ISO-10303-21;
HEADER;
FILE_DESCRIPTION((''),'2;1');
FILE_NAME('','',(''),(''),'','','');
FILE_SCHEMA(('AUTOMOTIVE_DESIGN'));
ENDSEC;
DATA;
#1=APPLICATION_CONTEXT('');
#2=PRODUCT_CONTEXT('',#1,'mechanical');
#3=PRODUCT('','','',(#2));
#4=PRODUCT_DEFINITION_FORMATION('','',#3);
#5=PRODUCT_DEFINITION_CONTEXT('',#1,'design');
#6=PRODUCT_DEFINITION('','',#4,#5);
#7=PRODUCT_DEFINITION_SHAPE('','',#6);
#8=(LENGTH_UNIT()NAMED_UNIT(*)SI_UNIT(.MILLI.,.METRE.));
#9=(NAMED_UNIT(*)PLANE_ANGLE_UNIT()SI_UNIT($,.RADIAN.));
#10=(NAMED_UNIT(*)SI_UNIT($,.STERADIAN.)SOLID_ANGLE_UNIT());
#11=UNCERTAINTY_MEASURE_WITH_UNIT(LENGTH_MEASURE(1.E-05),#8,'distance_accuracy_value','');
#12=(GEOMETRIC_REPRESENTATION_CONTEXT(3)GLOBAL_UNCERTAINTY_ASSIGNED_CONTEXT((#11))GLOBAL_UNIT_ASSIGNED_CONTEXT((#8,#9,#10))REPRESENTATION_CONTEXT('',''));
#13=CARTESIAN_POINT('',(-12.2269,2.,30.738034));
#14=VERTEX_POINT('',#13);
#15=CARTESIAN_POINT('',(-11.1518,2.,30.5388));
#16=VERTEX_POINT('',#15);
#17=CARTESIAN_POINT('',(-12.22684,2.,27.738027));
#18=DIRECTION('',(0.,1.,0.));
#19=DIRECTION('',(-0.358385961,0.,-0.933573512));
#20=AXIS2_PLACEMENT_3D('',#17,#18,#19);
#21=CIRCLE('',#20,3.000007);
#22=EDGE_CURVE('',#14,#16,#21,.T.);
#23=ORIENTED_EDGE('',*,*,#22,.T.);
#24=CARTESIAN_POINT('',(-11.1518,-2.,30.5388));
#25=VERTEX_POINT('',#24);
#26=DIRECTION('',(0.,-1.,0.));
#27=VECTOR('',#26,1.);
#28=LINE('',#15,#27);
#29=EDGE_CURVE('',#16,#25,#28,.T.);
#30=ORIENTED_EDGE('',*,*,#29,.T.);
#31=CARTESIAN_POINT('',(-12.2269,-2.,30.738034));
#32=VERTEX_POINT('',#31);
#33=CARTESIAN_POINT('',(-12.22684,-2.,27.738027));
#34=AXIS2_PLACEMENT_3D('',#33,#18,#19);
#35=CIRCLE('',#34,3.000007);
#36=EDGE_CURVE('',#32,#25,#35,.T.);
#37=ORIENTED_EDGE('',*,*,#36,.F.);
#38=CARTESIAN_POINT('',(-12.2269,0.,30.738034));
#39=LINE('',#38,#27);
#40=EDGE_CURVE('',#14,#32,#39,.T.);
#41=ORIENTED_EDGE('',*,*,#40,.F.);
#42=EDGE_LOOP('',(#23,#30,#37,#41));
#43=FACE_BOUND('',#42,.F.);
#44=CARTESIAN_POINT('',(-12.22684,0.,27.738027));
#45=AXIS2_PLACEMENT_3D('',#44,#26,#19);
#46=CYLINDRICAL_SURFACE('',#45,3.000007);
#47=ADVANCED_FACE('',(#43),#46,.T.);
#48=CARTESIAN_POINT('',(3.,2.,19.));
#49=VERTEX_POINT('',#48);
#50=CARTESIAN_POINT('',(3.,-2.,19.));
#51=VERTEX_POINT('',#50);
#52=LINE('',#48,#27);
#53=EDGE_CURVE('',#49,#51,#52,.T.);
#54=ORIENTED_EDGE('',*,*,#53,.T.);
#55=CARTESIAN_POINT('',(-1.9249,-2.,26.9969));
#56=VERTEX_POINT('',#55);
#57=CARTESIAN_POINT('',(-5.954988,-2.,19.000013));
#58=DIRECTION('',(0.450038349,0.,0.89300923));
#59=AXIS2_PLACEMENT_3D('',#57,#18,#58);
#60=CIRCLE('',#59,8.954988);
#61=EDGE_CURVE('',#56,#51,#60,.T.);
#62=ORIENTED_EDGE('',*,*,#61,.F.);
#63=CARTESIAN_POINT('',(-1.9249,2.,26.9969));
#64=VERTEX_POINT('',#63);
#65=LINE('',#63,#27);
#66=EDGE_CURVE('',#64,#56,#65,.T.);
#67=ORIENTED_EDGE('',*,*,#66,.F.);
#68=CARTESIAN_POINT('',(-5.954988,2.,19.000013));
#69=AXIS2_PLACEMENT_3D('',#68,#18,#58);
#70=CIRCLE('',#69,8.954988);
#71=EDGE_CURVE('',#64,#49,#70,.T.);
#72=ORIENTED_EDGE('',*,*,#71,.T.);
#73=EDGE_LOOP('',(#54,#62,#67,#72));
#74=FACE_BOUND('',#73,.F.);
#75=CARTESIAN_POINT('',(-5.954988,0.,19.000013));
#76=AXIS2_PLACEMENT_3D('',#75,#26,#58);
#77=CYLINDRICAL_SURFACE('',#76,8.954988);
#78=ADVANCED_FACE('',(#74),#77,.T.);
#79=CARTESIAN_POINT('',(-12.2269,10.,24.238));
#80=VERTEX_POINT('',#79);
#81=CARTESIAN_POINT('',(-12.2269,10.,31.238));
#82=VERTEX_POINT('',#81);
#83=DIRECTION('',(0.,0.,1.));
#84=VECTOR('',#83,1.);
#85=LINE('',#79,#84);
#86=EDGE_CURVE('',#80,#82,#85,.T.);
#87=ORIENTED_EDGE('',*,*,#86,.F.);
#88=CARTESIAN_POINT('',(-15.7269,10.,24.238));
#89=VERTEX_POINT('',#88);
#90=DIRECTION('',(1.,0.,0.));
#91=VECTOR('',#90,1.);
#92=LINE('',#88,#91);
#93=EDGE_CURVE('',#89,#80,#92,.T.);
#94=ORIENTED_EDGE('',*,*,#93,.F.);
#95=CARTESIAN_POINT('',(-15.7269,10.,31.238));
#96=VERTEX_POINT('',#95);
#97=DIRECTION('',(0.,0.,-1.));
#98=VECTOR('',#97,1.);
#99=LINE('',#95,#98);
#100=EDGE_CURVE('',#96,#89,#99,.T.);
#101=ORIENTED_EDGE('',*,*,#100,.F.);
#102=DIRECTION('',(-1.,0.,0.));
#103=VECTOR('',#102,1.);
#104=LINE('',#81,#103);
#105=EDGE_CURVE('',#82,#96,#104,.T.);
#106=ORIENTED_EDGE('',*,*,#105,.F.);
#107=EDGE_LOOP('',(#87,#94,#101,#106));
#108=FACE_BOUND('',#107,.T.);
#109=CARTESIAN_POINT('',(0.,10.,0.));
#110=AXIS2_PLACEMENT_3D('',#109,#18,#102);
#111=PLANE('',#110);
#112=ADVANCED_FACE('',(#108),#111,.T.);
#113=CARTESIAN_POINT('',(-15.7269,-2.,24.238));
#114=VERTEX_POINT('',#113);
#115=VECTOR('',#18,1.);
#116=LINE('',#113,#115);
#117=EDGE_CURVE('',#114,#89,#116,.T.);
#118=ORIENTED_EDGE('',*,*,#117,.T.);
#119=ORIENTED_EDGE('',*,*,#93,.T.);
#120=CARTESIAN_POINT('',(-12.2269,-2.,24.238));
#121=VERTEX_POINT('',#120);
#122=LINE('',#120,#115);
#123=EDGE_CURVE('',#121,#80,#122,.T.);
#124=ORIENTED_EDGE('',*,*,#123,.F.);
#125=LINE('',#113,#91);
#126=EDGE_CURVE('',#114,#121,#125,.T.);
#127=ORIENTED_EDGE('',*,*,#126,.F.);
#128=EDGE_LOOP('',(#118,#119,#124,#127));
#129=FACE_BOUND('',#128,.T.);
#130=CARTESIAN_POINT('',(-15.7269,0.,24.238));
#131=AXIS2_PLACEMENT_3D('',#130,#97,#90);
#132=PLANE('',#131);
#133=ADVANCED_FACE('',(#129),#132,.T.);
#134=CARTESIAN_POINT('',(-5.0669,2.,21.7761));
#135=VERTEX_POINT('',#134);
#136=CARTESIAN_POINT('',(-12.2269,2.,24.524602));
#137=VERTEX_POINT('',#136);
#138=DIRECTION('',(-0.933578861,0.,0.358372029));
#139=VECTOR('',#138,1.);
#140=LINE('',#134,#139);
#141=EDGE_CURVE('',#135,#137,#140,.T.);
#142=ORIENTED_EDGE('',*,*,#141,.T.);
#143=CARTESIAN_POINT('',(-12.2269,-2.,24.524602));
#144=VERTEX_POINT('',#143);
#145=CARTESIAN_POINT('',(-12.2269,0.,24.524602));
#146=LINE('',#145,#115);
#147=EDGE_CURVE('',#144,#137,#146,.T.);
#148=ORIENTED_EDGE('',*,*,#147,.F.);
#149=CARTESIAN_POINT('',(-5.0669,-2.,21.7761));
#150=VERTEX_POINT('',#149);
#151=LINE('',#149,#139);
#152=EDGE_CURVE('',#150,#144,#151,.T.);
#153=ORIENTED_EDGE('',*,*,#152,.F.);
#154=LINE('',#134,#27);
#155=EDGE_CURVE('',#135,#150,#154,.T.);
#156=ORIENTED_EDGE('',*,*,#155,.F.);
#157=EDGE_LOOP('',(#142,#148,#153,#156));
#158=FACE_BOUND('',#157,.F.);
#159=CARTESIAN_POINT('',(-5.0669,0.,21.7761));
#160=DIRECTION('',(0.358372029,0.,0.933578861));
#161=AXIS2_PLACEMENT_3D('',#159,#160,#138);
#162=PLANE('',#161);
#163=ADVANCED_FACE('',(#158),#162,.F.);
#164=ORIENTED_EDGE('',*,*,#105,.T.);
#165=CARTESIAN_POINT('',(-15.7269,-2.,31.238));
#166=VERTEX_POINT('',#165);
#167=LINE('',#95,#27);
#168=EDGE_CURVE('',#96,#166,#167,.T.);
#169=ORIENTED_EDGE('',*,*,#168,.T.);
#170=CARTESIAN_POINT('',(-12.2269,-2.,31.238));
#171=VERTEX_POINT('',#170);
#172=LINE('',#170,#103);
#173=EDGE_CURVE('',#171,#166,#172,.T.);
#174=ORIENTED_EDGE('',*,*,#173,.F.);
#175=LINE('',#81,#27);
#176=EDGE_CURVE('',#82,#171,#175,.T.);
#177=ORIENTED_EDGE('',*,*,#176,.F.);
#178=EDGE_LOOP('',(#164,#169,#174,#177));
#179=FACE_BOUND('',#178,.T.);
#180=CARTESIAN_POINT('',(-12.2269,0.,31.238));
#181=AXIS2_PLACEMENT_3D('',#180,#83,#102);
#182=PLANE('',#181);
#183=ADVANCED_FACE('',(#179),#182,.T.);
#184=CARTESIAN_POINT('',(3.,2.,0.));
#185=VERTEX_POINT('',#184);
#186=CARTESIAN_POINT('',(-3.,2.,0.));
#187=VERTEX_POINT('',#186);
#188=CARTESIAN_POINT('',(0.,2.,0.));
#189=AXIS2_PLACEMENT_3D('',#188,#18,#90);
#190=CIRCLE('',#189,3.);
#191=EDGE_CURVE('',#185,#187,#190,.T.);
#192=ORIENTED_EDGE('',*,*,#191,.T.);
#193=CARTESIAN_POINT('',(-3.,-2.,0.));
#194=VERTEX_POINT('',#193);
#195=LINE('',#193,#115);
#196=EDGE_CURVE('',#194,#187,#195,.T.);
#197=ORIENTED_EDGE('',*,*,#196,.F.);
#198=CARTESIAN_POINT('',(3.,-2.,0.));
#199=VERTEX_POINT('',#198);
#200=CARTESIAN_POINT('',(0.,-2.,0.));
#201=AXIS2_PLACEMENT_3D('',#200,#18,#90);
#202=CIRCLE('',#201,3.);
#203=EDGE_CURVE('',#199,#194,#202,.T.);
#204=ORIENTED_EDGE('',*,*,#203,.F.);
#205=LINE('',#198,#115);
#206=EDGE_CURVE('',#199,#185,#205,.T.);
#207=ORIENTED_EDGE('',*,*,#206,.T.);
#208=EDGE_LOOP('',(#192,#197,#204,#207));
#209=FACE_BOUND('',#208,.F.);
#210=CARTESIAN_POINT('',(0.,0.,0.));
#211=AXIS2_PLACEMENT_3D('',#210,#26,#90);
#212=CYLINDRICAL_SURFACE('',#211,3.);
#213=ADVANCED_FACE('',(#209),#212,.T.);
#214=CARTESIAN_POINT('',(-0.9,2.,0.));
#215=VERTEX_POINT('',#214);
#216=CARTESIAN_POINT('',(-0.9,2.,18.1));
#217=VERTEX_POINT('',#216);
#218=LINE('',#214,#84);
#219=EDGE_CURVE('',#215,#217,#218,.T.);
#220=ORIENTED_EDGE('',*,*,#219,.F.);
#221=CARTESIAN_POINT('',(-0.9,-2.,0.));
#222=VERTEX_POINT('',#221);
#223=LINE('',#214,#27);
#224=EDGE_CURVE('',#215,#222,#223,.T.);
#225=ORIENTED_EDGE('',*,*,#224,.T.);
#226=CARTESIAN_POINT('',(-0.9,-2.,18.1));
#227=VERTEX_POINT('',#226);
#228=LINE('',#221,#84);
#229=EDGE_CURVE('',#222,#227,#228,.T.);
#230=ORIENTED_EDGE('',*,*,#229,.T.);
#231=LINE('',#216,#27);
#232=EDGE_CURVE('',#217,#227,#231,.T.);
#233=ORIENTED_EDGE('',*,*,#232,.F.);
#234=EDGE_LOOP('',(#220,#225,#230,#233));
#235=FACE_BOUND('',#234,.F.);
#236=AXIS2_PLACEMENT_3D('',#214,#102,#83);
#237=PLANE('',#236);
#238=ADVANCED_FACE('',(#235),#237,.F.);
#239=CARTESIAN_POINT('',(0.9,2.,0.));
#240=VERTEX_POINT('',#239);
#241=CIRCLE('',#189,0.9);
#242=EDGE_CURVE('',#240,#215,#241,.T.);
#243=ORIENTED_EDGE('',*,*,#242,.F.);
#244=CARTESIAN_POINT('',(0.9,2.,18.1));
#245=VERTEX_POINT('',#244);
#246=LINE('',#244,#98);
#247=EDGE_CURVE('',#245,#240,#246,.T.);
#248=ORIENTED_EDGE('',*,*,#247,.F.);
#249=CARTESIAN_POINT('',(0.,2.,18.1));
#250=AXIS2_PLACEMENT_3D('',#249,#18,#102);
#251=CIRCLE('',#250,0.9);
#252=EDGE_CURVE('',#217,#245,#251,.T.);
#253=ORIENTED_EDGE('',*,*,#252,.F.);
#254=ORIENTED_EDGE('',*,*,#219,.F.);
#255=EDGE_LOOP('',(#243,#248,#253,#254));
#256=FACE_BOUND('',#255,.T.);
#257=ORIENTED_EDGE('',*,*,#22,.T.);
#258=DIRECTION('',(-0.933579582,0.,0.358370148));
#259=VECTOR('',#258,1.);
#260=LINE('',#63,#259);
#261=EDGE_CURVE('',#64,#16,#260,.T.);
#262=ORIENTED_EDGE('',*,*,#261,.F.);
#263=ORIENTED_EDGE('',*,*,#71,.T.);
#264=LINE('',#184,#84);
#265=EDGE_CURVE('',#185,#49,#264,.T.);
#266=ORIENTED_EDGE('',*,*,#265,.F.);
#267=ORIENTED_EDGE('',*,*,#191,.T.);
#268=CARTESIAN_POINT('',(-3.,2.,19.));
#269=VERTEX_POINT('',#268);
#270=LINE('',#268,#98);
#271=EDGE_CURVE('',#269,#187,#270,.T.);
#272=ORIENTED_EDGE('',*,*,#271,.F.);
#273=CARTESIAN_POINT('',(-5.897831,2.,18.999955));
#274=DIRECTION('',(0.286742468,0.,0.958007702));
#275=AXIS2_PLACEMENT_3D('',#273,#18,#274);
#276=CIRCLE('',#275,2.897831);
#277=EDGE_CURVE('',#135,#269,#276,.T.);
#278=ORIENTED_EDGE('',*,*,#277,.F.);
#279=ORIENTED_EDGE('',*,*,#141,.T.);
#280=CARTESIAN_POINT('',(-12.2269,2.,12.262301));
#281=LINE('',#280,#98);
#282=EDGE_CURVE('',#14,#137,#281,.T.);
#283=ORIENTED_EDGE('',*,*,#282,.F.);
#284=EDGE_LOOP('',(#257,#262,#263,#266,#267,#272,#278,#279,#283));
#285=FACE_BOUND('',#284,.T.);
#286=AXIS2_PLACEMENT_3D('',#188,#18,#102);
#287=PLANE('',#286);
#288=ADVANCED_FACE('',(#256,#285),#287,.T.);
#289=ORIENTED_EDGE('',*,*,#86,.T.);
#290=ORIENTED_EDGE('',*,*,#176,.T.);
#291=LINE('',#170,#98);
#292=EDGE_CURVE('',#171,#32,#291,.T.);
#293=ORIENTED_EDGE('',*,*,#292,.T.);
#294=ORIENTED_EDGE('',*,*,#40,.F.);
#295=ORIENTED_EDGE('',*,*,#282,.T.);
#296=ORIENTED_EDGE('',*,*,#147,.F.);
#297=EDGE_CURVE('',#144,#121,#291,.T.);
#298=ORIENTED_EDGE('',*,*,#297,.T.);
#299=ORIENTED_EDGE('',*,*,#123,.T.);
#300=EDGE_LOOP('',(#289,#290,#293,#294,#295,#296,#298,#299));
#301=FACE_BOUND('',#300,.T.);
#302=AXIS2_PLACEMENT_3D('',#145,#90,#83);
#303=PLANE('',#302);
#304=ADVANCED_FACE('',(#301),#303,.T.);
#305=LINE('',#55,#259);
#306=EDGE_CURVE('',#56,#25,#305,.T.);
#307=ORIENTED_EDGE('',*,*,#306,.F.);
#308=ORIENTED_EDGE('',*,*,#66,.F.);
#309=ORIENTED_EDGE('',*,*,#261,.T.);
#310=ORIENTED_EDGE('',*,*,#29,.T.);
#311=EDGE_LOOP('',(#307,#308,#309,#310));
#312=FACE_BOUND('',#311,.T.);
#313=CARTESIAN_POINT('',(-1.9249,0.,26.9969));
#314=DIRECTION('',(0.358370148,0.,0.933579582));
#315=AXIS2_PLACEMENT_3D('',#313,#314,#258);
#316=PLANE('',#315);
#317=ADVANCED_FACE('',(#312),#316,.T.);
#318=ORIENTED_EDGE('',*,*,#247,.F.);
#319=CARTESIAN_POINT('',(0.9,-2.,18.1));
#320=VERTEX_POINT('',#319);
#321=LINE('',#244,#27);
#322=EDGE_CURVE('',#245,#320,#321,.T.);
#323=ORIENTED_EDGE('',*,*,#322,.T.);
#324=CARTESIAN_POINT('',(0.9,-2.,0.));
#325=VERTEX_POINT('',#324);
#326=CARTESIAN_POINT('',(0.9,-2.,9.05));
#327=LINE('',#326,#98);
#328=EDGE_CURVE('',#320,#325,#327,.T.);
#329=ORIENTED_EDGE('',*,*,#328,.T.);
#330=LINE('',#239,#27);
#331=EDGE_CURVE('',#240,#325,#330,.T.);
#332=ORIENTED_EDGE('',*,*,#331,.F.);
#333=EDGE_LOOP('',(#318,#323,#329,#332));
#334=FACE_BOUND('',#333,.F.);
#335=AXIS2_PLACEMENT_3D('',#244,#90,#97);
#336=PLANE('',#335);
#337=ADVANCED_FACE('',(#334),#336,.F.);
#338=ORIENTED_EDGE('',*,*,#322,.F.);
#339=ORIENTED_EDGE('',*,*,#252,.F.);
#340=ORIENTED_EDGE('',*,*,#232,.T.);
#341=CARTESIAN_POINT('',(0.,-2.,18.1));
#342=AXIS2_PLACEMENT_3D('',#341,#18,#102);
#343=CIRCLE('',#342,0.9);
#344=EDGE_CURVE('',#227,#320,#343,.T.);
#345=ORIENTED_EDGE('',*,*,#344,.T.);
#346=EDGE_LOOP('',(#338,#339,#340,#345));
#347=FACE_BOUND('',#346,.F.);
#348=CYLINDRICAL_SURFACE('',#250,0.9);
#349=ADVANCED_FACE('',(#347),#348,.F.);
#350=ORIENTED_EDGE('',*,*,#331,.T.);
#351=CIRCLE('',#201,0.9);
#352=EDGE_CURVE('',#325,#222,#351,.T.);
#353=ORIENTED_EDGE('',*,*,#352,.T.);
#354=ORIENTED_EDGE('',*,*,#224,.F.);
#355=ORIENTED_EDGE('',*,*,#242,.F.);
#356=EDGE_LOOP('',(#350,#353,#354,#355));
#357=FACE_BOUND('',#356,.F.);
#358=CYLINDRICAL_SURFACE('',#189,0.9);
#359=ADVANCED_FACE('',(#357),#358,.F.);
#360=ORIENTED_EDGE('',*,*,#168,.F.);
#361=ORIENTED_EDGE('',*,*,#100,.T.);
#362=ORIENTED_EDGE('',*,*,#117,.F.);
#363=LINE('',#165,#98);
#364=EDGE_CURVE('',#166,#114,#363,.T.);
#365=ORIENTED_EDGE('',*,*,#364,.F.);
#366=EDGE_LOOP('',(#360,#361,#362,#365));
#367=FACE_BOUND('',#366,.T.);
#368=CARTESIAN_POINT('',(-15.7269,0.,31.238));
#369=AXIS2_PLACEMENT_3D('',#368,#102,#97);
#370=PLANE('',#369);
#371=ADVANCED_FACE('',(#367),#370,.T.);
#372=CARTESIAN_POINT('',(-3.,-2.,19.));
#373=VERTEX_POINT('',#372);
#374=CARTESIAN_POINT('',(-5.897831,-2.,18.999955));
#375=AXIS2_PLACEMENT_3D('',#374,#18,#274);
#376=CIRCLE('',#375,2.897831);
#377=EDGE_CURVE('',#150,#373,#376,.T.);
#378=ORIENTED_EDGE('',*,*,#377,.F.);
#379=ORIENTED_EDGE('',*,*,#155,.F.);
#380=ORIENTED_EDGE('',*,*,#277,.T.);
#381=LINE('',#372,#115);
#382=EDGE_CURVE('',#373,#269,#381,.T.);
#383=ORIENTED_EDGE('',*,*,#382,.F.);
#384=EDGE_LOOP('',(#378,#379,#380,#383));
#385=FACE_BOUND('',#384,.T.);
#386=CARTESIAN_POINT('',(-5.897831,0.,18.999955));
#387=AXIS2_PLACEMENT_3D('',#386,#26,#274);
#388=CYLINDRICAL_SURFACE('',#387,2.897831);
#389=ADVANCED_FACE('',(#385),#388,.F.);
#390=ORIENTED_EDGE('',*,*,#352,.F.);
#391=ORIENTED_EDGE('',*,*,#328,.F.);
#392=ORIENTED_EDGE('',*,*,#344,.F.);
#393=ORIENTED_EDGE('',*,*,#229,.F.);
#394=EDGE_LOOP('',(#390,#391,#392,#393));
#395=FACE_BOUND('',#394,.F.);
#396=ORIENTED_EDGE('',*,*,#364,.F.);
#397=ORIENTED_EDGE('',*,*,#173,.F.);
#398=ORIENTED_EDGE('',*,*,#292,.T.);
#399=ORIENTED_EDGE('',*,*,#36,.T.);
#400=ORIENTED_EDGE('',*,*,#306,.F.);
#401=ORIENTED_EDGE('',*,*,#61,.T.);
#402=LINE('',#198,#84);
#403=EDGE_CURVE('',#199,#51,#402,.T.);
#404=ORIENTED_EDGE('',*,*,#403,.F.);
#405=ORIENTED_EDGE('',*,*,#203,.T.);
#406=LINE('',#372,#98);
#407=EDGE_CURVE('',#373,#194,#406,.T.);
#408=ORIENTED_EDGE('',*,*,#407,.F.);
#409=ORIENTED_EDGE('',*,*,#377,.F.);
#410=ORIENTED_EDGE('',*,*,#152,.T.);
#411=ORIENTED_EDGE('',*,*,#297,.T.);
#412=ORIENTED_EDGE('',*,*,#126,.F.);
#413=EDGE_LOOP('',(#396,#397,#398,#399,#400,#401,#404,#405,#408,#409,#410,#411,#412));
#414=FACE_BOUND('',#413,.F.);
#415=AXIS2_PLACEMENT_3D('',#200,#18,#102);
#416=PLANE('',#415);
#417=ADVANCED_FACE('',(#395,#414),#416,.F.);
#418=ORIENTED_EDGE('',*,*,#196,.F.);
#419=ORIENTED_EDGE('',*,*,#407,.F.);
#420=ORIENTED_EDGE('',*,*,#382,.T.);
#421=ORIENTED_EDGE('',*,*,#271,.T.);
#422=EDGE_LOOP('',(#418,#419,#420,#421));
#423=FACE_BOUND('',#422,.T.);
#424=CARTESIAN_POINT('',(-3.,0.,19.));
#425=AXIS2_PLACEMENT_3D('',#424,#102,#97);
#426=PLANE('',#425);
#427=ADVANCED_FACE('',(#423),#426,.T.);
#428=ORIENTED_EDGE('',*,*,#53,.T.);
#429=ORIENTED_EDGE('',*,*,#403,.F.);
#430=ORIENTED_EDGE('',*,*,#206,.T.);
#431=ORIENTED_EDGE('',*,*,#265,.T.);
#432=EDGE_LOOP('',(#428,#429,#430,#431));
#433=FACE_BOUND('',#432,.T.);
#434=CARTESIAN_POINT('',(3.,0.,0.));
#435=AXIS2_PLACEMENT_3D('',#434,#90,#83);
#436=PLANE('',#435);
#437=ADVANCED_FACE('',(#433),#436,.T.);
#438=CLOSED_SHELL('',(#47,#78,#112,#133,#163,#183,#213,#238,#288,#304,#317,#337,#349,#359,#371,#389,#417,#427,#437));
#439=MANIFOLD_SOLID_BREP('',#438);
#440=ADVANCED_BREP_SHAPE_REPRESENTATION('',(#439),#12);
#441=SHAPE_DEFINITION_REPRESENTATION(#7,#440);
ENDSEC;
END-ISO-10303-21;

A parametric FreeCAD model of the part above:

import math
import FreeCAD as App
import Part
import Sketcher
from FreeCAD import Vector
Q = App.Units.Quantity


def add_polygon(sketch, points):
    """Adds a closed chain of lines whose ends are joined by coincident constraints."""
    first, n = sketch.GeometryCount, len(points)
    for a, b in zip(points, points[1:] + points[:1]):
        sketch.addGeometry(Part.LineSegment(App.Vector(*a, 0), App.Vector(*b, 0)), False)
    for i in range(n):
        sketch.addConstraint(Sketcher.Constraint("Coincident", first + i, 2, first + (i + 1) % n, 1))

doc = App.newDocument("Part")
body = doc.addObject("PartDesign::Body", "Body")

# Sketch on XZ plane
sketch1 = doc.addObject("Sketcher::SketchObject", "Sketch")
body.addObject(sketch1)
sketch1.AttachmentSupport = (doc.XZ_Plane, [""])
sketch1.MapMode = "FlatFace"
sketch1.addGeometry([
    Part.LineSegment(Vector(3, 19, 0), Vector(3, 0, 0)),  # 0
    Part.ArcOfCircle(Part.Circle(Vector(0, 0, 0), Vector(0, 0, 1), 3), math.radians(180), math.radians(360)),  # 1
    Part.LineSegment(Vector(-3, 0, 0), Vector(-3, 19, 0)),  # 2
    Part.ArcOfCircle(Part.Circle(Vector(-5.8978, 19, 0), Vector(0, 0, 1), 2.897779), math.radians(0), math.radians(73.337307)),  # 3
    Part.LineSegment(Vector(-5.0669, 21.7761, 0), Vector(-13.302, 24.9373, 0)),  # 4
    Part.ArcOfCircle(Part.Circle(Vector(-12.2269, 27.738, 0), Vector(0, 0, 1), 2.99996), math.radians(69.000471), math.radians(248.999786)),  # 5
    Part.LineSegment(Vector(-11.1518, 30.5388, 0), Vector(-1.9249, 26.9969, 0)),  # 6
    Part.ArcOfCircle(Part.Circle(Vector(-5.955, 19, 0), Vector(0, 0, 1), 8.955005), math.radians(0), math.radians(63.253825)),  # 7
], False)
sketch1.addConstraint([
    Sketcher.Constraint("Tangent", 0, 2, 1, 2),
    Sketcher.Constraint("Tangent", 1, 1, 2, 1),
    Sketcher.Constraint("Tangent", 2, 2, 3, 1),
    Sketcher.Constraint("Coincident", 3, 2, 4, 1),
    Sketcher.Constraint("Tangent", 4, 2, 5, 2),
    Sketcher.Constraint("Tangent", 5, 1, 6, 1),
    Sketcher.Constraint("Coincident", 6, 2, 7, 2),
    Sketcher.Constraint("Tangent", 7, 1, 0, 1),
    Sketcher.Constraint("Vertical", 0),
    Sketcher.Constraint("Vertical", 2),
    Sketcher.Constraint("Coincident", 1, 3, -1, 1),
    Sketcher.Constraint("Equal", 1, 5),
    Sketcher.Constraint("Parallel", 4, 6),
    Sketcher.Constraint("Horizontal", 3, 3, 7, 3),
    Sketcher.Constraint("Radius", 1, 3.0),
    Sketcher.Constraint("DistanceY", 0, 2, 0, 1, 19.0),
    Sketcher.Constraint("Angle", 4, Q("158.9997 deg")),
    Sketcher.Constraint("Radius", 7, 8.955),
    Sketcher.Constraint("Radius", 3, 2.8978),
    Sketcher.Constraint("DistanceX", 5, 3, 3, 2, 7.16),
    Sketcher.Constraint("DistanceX", 7, 3, 6, 2, 4.03),
])
pad1 = doc.addObject("PartDesign::Pad", "Pad")
body.addObject(pad1)
pad1.Profile = sketch1
pad1.Length = 4
pad1.Midplane = True

# Sketch on XZ plane
sketch2 = doc.addObject("Sketcher::SketchObject", "Sketch001")
body.addObject(sketch2)
sketch2.AttachmentSupport = (doc.XZ_Plane, [""])
sketch2.MapMode = "FlatFace"
sketch2.AttachmentOffset = App.Placement(Vector(0, 0, -2), App.Rotation())
sketch2.addGeometry([
    Part.ArcOfCircle(Part.Circle(Vector(0, 0, 0), Vector(0, 0, 1), 0.9), math.radians(180), math.radians(360)),
    Part.LineSegment(Vector(-0.9, 0, 0), Vector(-0.9, 18.1, 0)),
    Part.ArcOfCircle(Part.Circle(Vector(0, 18.1, 0), Vector(0, 0, 1), 0.9), math.radians(0), math.radians(180)),
    Part.LineSegment(Vector(0.9, 18.1, 0), Vector(0.9, 0, 0)),
], False)
sketch2.addConstraint([
    Sketcher.Constraint("Tangent", 0, 1, 1, 1),
    Sketcher.Constraint("Tangent", 1, 2, 2, 2),
    Sketcher.Constraint("Tangent", 2, 1, 3, 1),
    Sketcher.Constraint("Tangent", 3, 2, 0, 2),
    Sketcher.Constraint("Vertical", 1),
    Sketcher.Constraint("Vertical", 3),
    Sketcher.Constraint("Coincident", 0, 3, -1, 1),
    Sketcher.Constraint("Radius", 0, 0.9),
    Sketcher.Constraint("DistanceY", 1, 1, 1, 2, 18.1),
])
pocket1 = doc.addObject("PartDesign::Pocket", "Pocket")
body.addObject(pocket1)
pocket1.Profile = sketch2
pocket1.Type = "ThroughAll"
pocket1.Reversed = True

# Sketch on XZ plane
sketch3 = doc.addObject("Sketcher::SketchObject", "Sketch002")
body.addObject(sketch3)
sketch3.AttachmentSupport = (doc.XZ_Plane, [""])
sketch3.MapMode = "FlatFace"
add_polygon(sketch3, [(-12.2269, 24.238), (-15.7269, 24.238), (-15.7269, 31.238), (-12.2269, 31.238)])  # lines 0-3
sketch3.addConstraint([
    Sketcher.Constraint("Horizontal", 0),
    Sketcher.Constraint("Vertical", 1),
    Sketcher.Constraint("Horizontal", 2),
    Sketcher.Constraint("Vertical", 3),
    Sketcher.Constraint("DistanceY", 1, 1, 1, 2, 7.0),
    Sketcher.Constraint("DistanceX", 0, 2, 0, 1, 3.5),
    Sketcher.Constraint("DistanceX", 0, 2, -1, 1, 15.727),
    Sketcher.Constraint("DistanceY", -1, 1, 0, 2, 24.238),
])
pad2 = doc.addObject("PartDesign::Pad", "Pad001")
body.addObject(pad2)
pad2.Profile = sketch3
pad2.Type = "TwoLengths"
pad2.Length = 10
pad2.Length2 = 2
pad2.Reversed = True

doc.recompute()
